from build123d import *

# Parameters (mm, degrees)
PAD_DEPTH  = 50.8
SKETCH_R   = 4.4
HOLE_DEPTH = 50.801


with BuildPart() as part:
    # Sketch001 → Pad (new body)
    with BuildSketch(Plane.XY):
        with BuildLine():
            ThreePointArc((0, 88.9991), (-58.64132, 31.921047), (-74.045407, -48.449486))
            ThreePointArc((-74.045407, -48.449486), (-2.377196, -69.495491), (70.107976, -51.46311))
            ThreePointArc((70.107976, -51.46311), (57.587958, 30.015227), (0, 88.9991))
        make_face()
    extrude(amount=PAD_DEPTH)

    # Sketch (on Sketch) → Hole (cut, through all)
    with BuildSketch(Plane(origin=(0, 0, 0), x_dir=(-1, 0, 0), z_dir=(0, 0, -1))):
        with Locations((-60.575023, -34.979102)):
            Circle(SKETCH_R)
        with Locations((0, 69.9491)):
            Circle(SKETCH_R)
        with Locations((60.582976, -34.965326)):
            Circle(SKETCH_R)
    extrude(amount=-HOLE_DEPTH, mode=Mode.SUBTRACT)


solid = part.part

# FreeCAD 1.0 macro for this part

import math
import FreeCAD as App
import Part
import Sketcher

V = App.Vector
Q = App.Units.Quantity

doc = App.newDocument("Part")
body = doc.addObject("PartDesign::Body", "Body")

sketch1 = doc.addObject("Sketcher::SketchObject", "Sketch")
body.addObject(sketch1)
sketch1.AttachmentSupport = (doc.XY_Plane, [""])
sketch1.MapMode = "FlatFace"
sketch1.addGeometry([
    Part.ArcOfCircle(Part.Circle(V(61, -33, 0), V(0, 0, 1), 136), math.radians(117), math.radians(187)),
    Part.ArcOfCircle(Part.Circle(V(1, 73, 0), V(0, 0, 1), 143), math.radians(-122), math.radians(-61)),
    Part.ArcOfCircle(Part.Circle(V(-63, -30, 0), V(0, 0, 1), 135), math.radians(-9), math.radians(62)),
], False)
sketch1.addConstraint([
    Sketcher.Constraint("Coincident", 0, 2, 1, 1),
    Sketcher.Constraint("Coincident", 1, 2, 2, 1),
    Sketcher.Constraint("Coincident", 2, 2, 0, 1),
    Sketcher.Constraint("PointOnObject", 2, 2, -2),
    Sketcher.Constraint("Radius", 1, Q("142.73998 mm")),
    Sketcher.Constraint("Radius", 2, Q("134.911508 mm")),
    Sketcher.Constraint("Radius", 0, Q("136.355584 mm")),
    Sketcher.Constraint("DistanceY", -1, 1, 2, 2, Q("88.9991 mm")),
    Sketcher.Constraint("DistanceX", -1, 1, 1, 3, Q("0.606228 mm")),
    Sketcher.Constraint("DistanceX", 2, 3, -1, 1, Q("63.12286 mm")),
    Sketcher.Constraint("DistanceY", 1, 2, -1, 1, Q("51.46311 mm")),
    Sketcher.Constraint("DistanceY", 0, 3, 2, 3, Q("2.51419 mm")),
])
pad1 = doc.addObject("PartDesign::Pad", "Pad")
body.addObject(pad1)
pad1.Profile = sketch1
pad1.Length = 50.8

sketch2 = doc.addObject("Sketcher::SketchObject", "Sketch001")
body.addObject(sketch2)
sketch2.AttachmentSupport = (doc.XY_Plane, [""])
sketch2.MapMode = "FlatFace"
sketch2.addGeometry([
    Part.Circle(V(60.6, -35, 0), V(0, 0, 1), 4.4),
    Part.Circle(V(0, 69.9, 0), V(0, 0, 1), 4.4),
    Part.Circle(V(-60.6, -35, 0), V(0, 0, 1), 4.4),
], False)
sketch2.addConstraint([
    Sketcher.Constraint("Equal", 0, 1),
    Sketcher.Constraint("Equal", 1, 2),
    Sketcher.Constraint("PointOnObject", 1, 3, -2),
    Sketcher.Constraint("Diameter", 0, Q("8.8 mm")),
    Sketcher.Constraint("DistanceX", 2, 3, 0, 3, Q("121.157999 mm")),
    Sketcher.Constraint("DistanceY", 0, 3, -1, 1, Q("34.979102 mm")),
    Sketcher.Constraint("DistanceY", -1, 1, 1, 3, Q("69.9491 mm")),
    Sketcher.Constraint("DistanceX", -1, 1, 0, 3, Q("60.575023 mm")),
    Sketcher.Constraint("DistanceY", 2, 3, -1, 1, Q("34.965326 mm")),
])
pocket1 = doc.addObject("PartDesign::Pocket", "Pocket")
body.addObject(pocket1)
pocket1.Profile = sketch2
pocket1.Type = "ThroughAll"
pocket1.Reversed = True

doc.recompute()
